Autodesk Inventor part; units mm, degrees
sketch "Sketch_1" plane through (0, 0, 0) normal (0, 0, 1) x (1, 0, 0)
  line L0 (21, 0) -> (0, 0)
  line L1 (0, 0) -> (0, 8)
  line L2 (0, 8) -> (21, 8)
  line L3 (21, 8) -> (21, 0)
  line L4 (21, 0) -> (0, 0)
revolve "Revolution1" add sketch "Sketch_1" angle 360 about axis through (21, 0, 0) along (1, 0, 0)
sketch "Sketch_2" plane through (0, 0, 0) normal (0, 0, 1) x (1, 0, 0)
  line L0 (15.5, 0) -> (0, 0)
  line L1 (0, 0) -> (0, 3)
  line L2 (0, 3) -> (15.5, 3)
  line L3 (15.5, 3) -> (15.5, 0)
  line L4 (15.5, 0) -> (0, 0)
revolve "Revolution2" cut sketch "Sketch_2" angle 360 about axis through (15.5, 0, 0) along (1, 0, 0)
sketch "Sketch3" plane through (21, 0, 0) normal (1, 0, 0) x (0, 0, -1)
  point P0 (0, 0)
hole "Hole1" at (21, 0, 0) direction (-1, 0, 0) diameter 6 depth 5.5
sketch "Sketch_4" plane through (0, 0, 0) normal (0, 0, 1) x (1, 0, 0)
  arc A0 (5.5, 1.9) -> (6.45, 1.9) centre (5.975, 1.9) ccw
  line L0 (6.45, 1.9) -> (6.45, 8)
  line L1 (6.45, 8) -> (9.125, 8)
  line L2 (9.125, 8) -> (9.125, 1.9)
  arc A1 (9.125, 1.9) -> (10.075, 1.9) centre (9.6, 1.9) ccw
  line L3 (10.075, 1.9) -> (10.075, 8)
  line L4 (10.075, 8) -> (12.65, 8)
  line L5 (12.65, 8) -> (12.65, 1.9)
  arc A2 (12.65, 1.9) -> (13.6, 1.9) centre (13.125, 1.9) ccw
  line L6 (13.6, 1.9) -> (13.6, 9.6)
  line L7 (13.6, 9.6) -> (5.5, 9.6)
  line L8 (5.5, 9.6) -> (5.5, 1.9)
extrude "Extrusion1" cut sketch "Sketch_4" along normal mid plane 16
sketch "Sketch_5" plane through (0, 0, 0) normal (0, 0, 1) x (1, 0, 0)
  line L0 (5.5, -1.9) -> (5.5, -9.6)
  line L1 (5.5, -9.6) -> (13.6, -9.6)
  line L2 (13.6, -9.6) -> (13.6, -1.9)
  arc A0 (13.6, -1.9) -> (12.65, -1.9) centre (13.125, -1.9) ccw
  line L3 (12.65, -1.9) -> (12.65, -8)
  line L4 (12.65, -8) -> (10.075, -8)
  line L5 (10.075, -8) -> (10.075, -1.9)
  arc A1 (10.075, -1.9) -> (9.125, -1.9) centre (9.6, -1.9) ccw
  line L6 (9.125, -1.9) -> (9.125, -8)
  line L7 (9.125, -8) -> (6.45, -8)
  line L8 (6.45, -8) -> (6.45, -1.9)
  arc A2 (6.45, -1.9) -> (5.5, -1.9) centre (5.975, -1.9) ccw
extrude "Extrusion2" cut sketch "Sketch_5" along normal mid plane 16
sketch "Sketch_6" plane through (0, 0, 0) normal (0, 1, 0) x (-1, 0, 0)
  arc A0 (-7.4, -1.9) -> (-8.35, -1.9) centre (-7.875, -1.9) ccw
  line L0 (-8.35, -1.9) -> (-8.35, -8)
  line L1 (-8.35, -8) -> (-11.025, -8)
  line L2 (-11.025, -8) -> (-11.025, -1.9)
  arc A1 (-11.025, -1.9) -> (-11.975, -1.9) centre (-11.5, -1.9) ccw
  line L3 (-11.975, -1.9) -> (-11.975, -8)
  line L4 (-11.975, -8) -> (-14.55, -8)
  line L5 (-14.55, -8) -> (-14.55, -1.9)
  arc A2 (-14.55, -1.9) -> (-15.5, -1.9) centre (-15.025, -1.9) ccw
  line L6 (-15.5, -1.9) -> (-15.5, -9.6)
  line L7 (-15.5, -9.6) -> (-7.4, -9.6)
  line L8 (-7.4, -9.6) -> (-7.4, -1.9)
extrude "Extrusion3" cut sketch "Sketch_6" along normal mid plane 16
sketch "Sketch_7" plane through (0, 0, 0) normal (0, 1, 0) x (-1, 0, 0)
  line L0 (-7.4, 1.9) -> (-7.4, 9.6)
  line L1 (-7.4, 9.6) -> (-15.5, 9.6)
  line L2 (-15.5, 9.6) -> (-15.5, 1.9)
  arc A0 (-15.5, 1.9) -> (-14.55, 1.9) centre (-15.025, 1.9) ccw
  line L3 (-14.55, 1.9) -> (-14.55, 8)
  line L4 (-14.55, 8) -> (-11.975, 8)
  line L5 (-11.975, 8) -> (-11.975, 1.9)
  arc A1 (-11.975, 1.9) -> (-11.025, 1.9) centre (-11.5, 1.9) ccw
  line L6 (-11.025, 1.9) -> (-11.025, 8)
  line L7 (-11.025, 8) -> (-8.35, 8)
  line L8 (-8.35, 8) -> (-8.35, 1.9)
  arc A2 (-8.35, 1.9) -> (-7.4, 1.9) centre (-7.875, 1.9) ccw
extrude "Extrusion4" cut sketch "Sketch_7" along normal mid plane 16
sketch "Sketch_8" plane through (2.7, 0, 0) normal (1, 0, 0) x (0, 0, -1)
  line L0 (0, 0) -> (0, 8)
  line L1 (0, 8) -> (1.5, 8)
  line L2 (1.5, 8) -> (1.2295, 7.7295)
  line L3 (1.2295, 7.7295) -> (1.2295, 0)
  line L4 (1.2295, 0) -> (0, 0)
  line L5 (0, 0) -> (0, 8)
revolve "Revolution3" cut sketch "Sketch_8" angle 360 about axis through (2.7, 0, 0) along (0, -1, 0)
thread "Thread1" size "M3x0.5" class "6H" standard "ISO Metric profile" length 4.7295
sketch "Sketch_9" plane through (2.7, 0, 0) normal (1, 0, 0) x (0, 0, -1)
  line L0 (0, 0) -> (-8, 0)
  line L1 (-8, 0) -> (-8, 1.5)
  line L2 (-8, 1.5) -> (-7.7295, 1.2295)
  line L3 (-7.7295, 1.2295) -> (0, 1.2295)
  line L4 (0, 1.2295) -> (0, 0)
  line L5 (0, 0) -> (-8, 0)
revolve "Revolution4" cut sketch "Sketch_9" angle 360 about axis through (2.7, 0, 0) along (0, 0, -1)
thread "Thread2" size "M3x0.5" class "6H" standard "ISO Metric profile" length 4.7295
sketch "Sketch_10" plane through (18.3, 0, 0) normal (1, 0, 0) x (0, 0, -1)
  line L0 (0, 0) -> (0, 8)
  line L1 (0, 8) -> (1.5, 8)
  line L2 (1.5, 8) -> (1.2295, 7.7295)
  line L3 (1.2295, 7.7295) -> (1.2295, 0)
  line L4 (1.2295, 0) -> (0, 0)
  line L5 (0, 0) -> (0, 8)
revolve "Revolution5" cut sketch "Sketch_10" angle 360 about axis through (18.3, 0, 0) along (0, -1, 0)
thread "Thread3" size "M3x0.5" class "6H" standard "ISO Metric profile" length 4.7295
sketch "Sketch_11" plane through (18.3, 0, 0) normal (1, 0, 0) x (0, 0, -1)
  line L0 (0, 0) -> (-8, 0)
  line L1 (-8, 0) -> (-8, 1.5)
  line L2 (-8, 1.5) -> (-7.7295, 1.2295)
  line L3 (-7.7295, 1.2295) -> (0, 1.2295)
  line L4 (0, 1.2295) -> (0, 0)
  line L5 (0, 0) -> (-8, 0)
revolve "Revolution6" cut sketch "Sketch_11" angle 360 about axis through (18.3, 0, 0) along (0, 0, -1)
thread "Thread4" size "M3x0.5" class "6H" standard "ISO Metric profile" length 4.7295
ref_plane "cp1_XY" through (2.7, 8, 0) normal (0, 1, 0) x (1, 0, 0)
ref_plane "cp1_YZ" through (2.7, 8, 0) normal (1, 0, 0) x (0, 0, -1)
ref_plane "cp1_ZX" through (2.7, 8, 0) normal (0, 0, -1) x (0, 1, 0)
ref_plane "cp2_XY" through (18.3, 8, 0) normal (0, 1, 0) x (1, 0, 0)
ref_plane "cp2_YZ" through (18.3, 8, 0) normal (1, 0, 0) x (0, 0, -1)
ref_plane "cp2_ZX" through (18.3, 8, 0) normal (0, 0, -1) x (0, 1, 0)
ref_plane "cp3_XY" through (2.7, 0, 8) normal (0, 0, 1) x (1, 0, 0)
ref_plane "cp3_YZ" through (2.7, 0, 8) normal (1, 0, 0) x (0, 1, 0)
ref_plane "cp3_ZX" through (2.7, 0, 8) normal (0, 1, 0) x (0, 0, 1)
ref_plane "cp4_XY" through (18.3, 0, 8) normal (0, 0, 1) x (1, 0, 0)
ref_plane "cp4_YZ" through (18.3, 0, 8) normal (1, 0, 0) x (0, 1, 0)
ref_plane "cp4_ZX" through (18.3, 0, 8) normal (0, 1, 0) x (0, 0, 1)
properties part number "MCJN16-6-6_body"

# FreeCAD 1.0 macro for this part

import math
import FreeCAD as App
import Part
import Sketcher
Q = App.Units.Quantity

doc = App.newDocument("Part")
body = doc.addObject("PartDesign::Body", "Body")

# Sketch on XY plane
sketch1 = body.newObject("Sketcher::SketchObject", "Sketch")
sketch1.AttachmentSupport = (doc.getObject("XY_Plane"), [""])
sketch1.MapMode = "FlatFace"
sketch1.addGeometry([
    Part.LineSegment(App.Vector(0, 0, 0), App.Vector(21, 0, 0)),
    Part.LineSegment(App.Vector(21, 0, 0), App.Vector(21, 8, 0)),
    Part.LineSegment(App.Vector(21, 8, 0), App.Vector(0, 8, 0)),
    Part.LineSegment(App.Vector(0, 8, 0), App.Vector(0, 0, 0)),
], False)
sketch1.addConstraint([
    Sketcher.Constraint("Coincident", 0, 2, 1, 1),
    Sketcher.Constraint("Coincident", 1, 2, 2, 1),
    Sketcher.Constraint("Coincident", 2, 2, 3, 1),
    Sketcher.Constraint("Coincident", 3, 2, 0, 1),
    Sketcher.Constraint("Horizontal", 0),
    Sketcher.Constraint("Vertical", 1),
    Sketcher.Constraint("Horizontal", 2),
    Sketcher.Constraint("Vertical", 3),
    Sketcher.Constraint("Coincident", 3, 2, -1, 1),
    Sketcher.Constraint("DistanceX", 0, 1, 0, 2, 21.0),
    Sketcher.Constraint("DistanceY", 1, 1, 1, 2, 8.0),
])
revolution = body.newObject("PartDesign::Revolution", "Revolution")
revolution.Profile = sketch1
revolution.ReferenceAxis = (sketch1, ["H_Axis"])
revolution.Angle = 360

# Sketch on XY plane
sketch2 = body.newObject("Sketcher::SketchObject", "Sketch001")
sketch2.AttachmentSupport = (doc.getObject("XY_Plane"), [""])
sketch2.MapMode = "FlatFace"
sketch2.addGeometry([
    Part.LineSegment(App.Vector(0, 0, 0), App.Vector(15.5, 0, 0)),
    Part.LineSegment(App.Vector(15.5, 0, 0), App.Vector(15.5, 3, 0)),
    Part.LineSegment(App.Vector(15.5, 3, 0), App.Vector(0, 3, 0)),
    Part.LineSegment(App.Vector(0, 3, 0), App.Vector(0, 0, 0)),
], False)
sketch2.addConstraint([
    Sketcher.Constraint("Coincident", 0, 2, 1, 1),
    Sketcher.Constraint("Coincident", 1, 2, 2, 1),
    Sketcher.Constraint("Coincident", 2, 2, 3, 1),
    Sketcher.Constraint("Coincident", 3, 2, 0, 1),
    Sketcher.Constraint("Horizontal", 0),
    Sketcher.Constraint("Vertical", 1),
    Sketcher.Constraint("Horizontal", 2),
    Sketcher.Constraint("Vertical", 3),
    Sketcher.Constraint("Coincident", 3, 2, -1, 1),
    Sketcher.Constraint("DistanceY", 1, 1, 1, 2, 3.0),
    Sketcher.Constraint("DistanceX", 0, 1, 0, 2, 15.5),
])
groove = body.newObject("PartDesign::Groove", "Groove")
groove.Profile = sketch2
groove.ReferenceAxis = (sketch2, ["H_Axis"])
groove.Angle = 360

# Sketch on YZ plane
sketch3 = body.newObject("Sketcher::SketchObject", "Sketch002")
sketch3.AttachmentSupport = (doc.getObject("YZ_Plane"), [""])
sketch3.MapMode = "FlatFace"
sketch3.AttachmentOffset = App.Placement(App.Vector(0, 0, 21), App.Rotation())
sketch3.addGeometry(Part.Circle(App.Vector(0, 0, 0), App.Vector(0, 0, 1), 3), False)
sketch3.addConstraint([
    Sketcher.Constraint("Coincident", 0, 3, -1, 1),
    Sketcher.Constraint("Diameter", 0, 6.0),
])
doc.recompute()
hole = body.newObject("PartDesign::Hole", "Hole")
hole.Profile = sketch3
hole.ThreadType = "None"
hole.Diameter = 6
hole.DepthType = "Dimension"
hole.Depth = 5.5
hole.DrillPoint = "Flat"

# Sketch on XY plane
sketch4 = body.newObject("Sketcher::SketchObject", "Sketch003")
sketch4.AttachmentSupport = (doc.getObject("XY_Plane"), [""])
sketch4.MapMode = "FlatFace"
sketch4.addGeometry([
    Part.LineSegment(App.Vector(5.5, 9.6, 0), App.Vector(5.5, 1.9, 0)),  # 0
    Part.ArcOfCircle(Part.Circle(App.Vector(5.975, 1.9, 0), App.Vector(0, 0, 1), 0.475), math.radians(180), math.radians(360)),  # 1
    Part.LineSegment(App.Vector(6.45, 1.9, 0), App.Vector(6.45, 8, 0)),  # 2
    Part.LineSegment(App.Vector(6.45, 8, 0), App.Vector(9.125, 8, 0)),  # 3
    Part.LineSegment(App.Vector(9.125, 8, 0), App.Vector(9.125, 1.9, 0)),  # 4
    Part.ArcOfCircle(Part.Circle(App.Vector(9.6, 1.9, 0), App.Vector(0, 0, 1), 0.475), math.radians(180), math.radians(360)),  # 5
    Part.LineSegment(App.Vector(10.075, 1.9, 0), App.Vector(10.075, 8, 0)),  # 6
    Part.LineSegment(App.Vector(10.075, 8, 0), App.Vector(12.65, 8, 0)),  # 7
    Part.LineSegment(App.Vector(12.65, 8, 0), App.Vector(12.65, 1.9, 0)),  # 8
    Part.ArcOfCircle(Part.Circle(App.Vector(13.125, 1.9, 0), App.Vector(0, 0, 1), 0.475), math.radians(180), math.radians(360)),  # 9
    Part.LineSegment(App.Vector(13.6, 1.9, 0), App.Vector(13.6, 9.6, 0)),  # 10
    Part.LineSegment(App.Vector(13.6, 9.6, 0), App.Vector(5.5, 9.6, 0)),  # 11
], False)
sketch4.addConstraint([
    Sketcher.Constraint("Tangent", 0, 2, 1, 1),
    Sketcher.Constraint("Tangent", 1, 2, 2, 1),
    Sketcher.Constraint("Coincident", 2, 2, 3, 1),
    Sketcher.Constraint("Coincident", 3, 2, 4, 1),
    Sketcher.Constraint("Tangent", 4, 2, 5, 1),
    Sketcher.Constraint("Tangent", 5, 2, 6, 1),
    Sketcher.Constraint("Coincident", 6, 2, 7, 1),
    Sketcher.Constraint("Coincident", 7, 2, 8, 1),
    Sketcher.Constraint("Tangent", 8, 2, 9, 1),
    Sketcher.Constraint("Tangent", 9, 2, 10, 1),
    Sketcher.Constraint("Coincident", 10, 2, 11, 1),
    Sketcher.Constraint("Coincident", 11, 2, 0, 1),
    Sketcher.Constraint("Vertical", 0),
    Sketcher.Constraint("Vertical", 2),
    Sketcher.Constraint("Horizontal", 3),
    Sketcher.Constraint("Vertical", 4),
    Sketcher.Constraint("Vertical", 6),
    Sketcher.Constraint("Horizontal", 7),
    Sketcher.Constraint("Vertical", 8),
    Sketcher.Constraint("Vertical", 10),
    Sketcher.Constraint("Horizontal", 11),
    Sketcher.Constraint("Equal", 1, 5),
    Sketcher.Constraint("Equal", 5, 9),
    Sketcher.Constraint("Horizontal", 1, 3, 5, 3),
    Sketcher.Constraint("Horizontal", 5, 3, 9, 3),
    Sketcher.Constraint("Horizontal", 3, 2, 6, 2),
    Sketcher.Constraint("DistanceX", 11, 2, 11, 1, 8.1),
    Sketcher.Constraint("DistanceY", 0, 2, 0, 1, 7.7),
    Sketcher.Constraint("DistanceY", 2, 1, 2, 2, 6.1),
    Sketcher.Constraint("DistanceY", -1, 1, 2, 2, 8.0),
    Sketcher.Constraint("Radius", 1, 0.475),
    Sketcher.Constraint("DistanceX", 4, 2, 9, 3, 4.0),
    Sketcher.Constraint("DistanceX", -1, 1, 5, 3, 9.6),
])
pocket1 = body.newObject("PartDesign::Pocket", "Pocket")
pocket1.Profile = sketch4
pocket1.Length = 16
pocket1.Midplane = True

# Sketch on XY plane
sketch5 = body.newObject("Sketcher::SketchObject", "Sketch004")
sketch5.AttachmentSupport = (doc.getObject("XY_Plane"), [""])
sketch5.MapMode = "FlatFace"
sketch5.addGeometry([
    Part.ArcOfCircle(Part.Circle(App.Vector(5.975, -1.9, 0), App.Vector(0, 0, 1), 0.475), math.radians(0), math.radians(180)),  # 0
    Part.LineSegment(App.Vector(5.5, -1.9, 0), App.Vector(5.5, -9.6, 0)),  # 1
    Part.LineSegment(App.Vector(5.5, -9.6, 0), App.Vector(13.6, -9.6, 0)),  # 2
    Part.LineSegment(App.Vector(13.6, -9.6, 0), App.Vector(13.6, -1.9, 0)),  # 3
    Part.ArcOfCircle(Part.Circle(App.Vector(13.125, -1.9, 0), App.Vector(0, 0, 1), 0.475), math.radians(0), math.radians(180)),  # 4
    Part.LineSegment(App.Vector(12.65, -1.9, 0), App.Vector(12.65, -8, 0)),  # 5
    Part.LineSegment(App.Vector(12.65, -8, 0), App.Vector(10.075, -8, 0)),  # 6
    Part.LineSegment(App.Vector(10.075, -8, 0), App.Vector(10.075, -1.9, 0)),  # 7
    Part.ArcOfCircle(Part.Circle(App.Vector(9.6, -1.9, 0), App.Vector(0, 0, 1), 0.475), math.radians(0), math.radians(180)),  # 8
    Part.LineSegment(App.Vector(9.125, -1.9, 0), App.Vector(9.125, -8, 0)),  # 9
    Part.LineSegment(App.Vector(9.125, -8, 0), App.Vector(6.45, -8, 0)),  # 10
    Part.LineSegment(App.Vector(6.45, -8, 0), App.Vector(6.45, -1.9, 0)),  # 11
], False)
sketch5.addConstraint([
    Sketcher.Constraint("Tangent", 0, 2, 1, 1),
    Sketcher.Constraint("Coincident", 1, 2, 2, 1),
    Sketcher.Constraint("Coincident", 2, 2, 3, 1),
    Sketcher.Constraint("Tangent", 3, 2, 4, 1),
    Sketcher.Constraint("Tangent", 4, 2, 5, 1),
    Sketcher.Constraint("Coincident", 5, 2, 6, 1),
    Sketcher.Constraint("Coincident", 6, 2, 7, 1),
    Sketcher.Constraint("Tangent", 7, 2, 8, 1),
    Sketcher.Constraint("Tangent", 8, 2, 9, 1),
    Sketcher.Constraint("Coincident", 9, 2, 10, 1),
    Sketcher.Constraint("Coincident", 10, 2, 11, 1),
    Sketcher.Constraint("Tangent", 11, 2, 0, 1),
    Sketcher.Constraint("Vertical", 1),
    Sketcher.Constraint("Horizontal", 2),
    Sketcher.Constraint("Vertical", 3),
    Sketcher.Constraint("Vertical", 5),
    Sketcher.Constraint("Horizontal", 6),
    Sketcher.Constraint("Vertical", 7),
    Sketcher.Constraint("Vertical", 9),
    Sketcher.Constraint("Horizontal", 10),
    Sketcher.Constraint("Vertical", 11),
    Sketcher.Constraint("Equal", 0, 4),
    Sketcher.Constraint("Equal", 4, 8),
    Sketcher.Constraint("Horizontal", 0, 3, 4, 3),
    Sketcher.Constraint("Horizontal", 4, 3, 8, 3),
    Sketcher.Constraint("Horizontal", 6, 2, 9, 2),
    Sketcher.Constraint("DistanceX", 2, 1, 2, 2, 8.1),
    Sketcher.Constraint("DistanceY", 1, 2, 1, 1, 7.7),
    Sketcher.Constraint("DistanceY", 5, 2, 5, 1, 6.1),
    Sketcher.Constraint("DistanceY", 5, 2, -1, 1, 8.0),
    Sketcher.Constraint("Radius", 0, 0.475),
    Sketcher.Constraint("DistanceX", 8, 3, 2, 2, 4.0),
    Sketcher.Constraint("DistanceX", -1, 1, 8, 3, 9.6),
])
pocket2 = body.newObject("PartDesign::Pocket", "Pocket001")
pocket2.Profile = sketch5
pocket2.Length = 16
pocket2.Midplane = True

# Sketch on XZ plane
sketch6 = body.newObject("Sketcher::SketchObject", "Sketch005")
sketch6.AttachmentSupport = (doc.getObject("XZ_Plane"), [""])
sketch6.MapMode = "FlatFace"
sketch6.addGeometry([
    Part.LineSegment(App.Vector(7.4, -9.6, 0), App.Vector(7.4, -1.9, 0)),  # 0
    Part.ArcOfCircle(Part.Circle(App.Vector(7.875, -1.9, 0), App.Vector(0, 0, 1), 0.475), math.radians(0), math.radians(180)),  # 1
    Part.LineSegment(App.Vector(8.35, -1.9, 0), App.Vector(8.35, -8, 0)),  # 2
    Part.LineSegment(App.Vector(8.35, -8, 0), App.Vector(11.025, -8, 0)),  # 3
    Part.LineSegment(App.Vector(11.025, -8, 0), App.Vector(11.025, -1.9, 0)),  # 4
    Part.ArcOfCircle(Part.Circle(App.Vector(11.5, -1.9, 0), App.Vector(0, 0, 1), 0.475), math.radians(0), math.radians(180)),  # 5
    Part.LineSegment(App.Vector(11.975, -1.9, 0), App.Vector(11.975, -8, 0)),  # 6
    Part.LineSegment(App.Vector(11.975, -8, 0), App.Vector(14.55, -8, 0)),  # 7
    Part.LineSegment(App.Vector(14.55, -8, 0), App.Vector(14.55, -1.9, 0)),  # 8
    Part.ArcOfCircle(Part.Circle(App.Vector(15.025, -1.9, 0), App.Vector(0, 0, 1), 0.475), math.radians(0), math.radians(180)),  # 9
    Part.LineSegment(App.Vector(15.5, -1.9, 0), App.Vector(15.5, -9.6, 0)),  # 10
    Part.LineSegment(App.Vector(15.5, -9.6, 0), App.Vector(7.4, -9.6, 0)),  # 11
], False)
sketch6.addConstraint([
    Sketcher.Constraint("Tangent", 0, 2, 1, 2),
    Sketcher.Constraint("Tangent", 1, 1, 2, 1),
    Sketcher.Constraint("Coincident", 2, 2, 3, 1),
    Sketcher.Constraint("Coincident", 3, 2, 4, 1),
    Sketcher.Constraint("Tangent", 4, 2, 5, 2),
    Sketcher.Constraint("Tangent", 5, 1, 6, 1),
    Sketcher.Constraint("Coincident", 6, 2, 7, 1),
    Sketcher.Constraint("Coincident", 7, 2, 8, 1),
    Sketcher.Constraint("Tangent", 8, 2, 9, 2),
    Sketcher.Constraint("Tangent", 9, 1, 10, 1),
    Sketcher.Constraint("Coincident", 10, 2, 11, 1),
    Sketcher.Constraint("Coincident", 11, 2, 0, 1),
    Sketcher.Constraint("Vertical", 0),
    Sketcher.Constraint("Vertical", 2),
    Sketcher.Constraint("Horizontal", 3),
    Sketcher.Constraint("Vertical", 4),
    Sketcher.Constraint("Vertical", 6),
    Sketcher.Constraint("Horizontal", 7),
    Sketcher.Constraint("Vertical", 8),
    Sketcher.Constraint("Vertical", 10),
    Sketcher.Constraint("Horizontal", 11),
    Sketcher.Constraint("Equal", 1, 5),
    Sketcher.Constraint("Equal", 5, 9),
    Sketcher.Constraint("Horizontal", 1, 3, 5, 3),
    Sketcher.Constraint("Horizontal", 5, 3, 9, 3),
    Sketcher.Constraint("Horizontal", 3, 2, 6, 2),
    Sketcher.Constraint("DistanceX", 11, 2, 11, 1, 8.1),
    Sketcher.Constraint("DistanceY", 0, 1, 0, 2, 7.7),
    Sketcher.Constraint("DistanceY", 2, 2, 2, 1, 6.1),
    Sketcher.Constraint("DistanceY", 2, 2, -1, 1, 8.0),
    Sketcher.Constraint("Radius", 1, 0.475),
    Sketcher.Constraint("DistanceX", 4, 2, 9, 3, 4.0),
    Sketcher.Constraint("DistanceX", -1, 1, 5, 3, 11.5),
])
pocket3 = body.newObject("PartDesign::Pocket", "Pocket002")
pocket3.Profile = sketch6
pocket3.Length = 16
pocket3.Midplane = True

# Sketch on XZ plane
sketch7 = body.newObject("Sketcher::SketchObject", "Sketch006")
sketch7.AttachmentSupport = (doc.getObject("XZ_Plane"), [""])
sketch7.MapMode = "FlatFace"
sketch7.addGeometry([
    Part.ArcOfCircle(Part.Circle(App.Vector(7.875, 1.9, 0), App.Vector(0, 0, 1), 0.475), math.radians(180), math.radians(360)),  # 0
    Part.LineSegment(App.Vector(7.4, 1.9, 0), App.Vector(7.4, 9.6, 0)),  # 1
    Part.LineSegment(App.Vector(7.4, 9.6, 0), App.Vector(15.5, 9.6, 0)),  # 2
    Part.LineSegment(App.Vector(15.5, 9.6, 0), App.Vector(15.5, 1.9, 0)),  # 3
    Part.ArcOfCircle(Part.Circle(App.Vector(15.025, 1.9, 0), App.Vector(0, 0, 1), 0.475), math.radians(180), math.radians(360)),  # 4
    Part.LineSegment(App.Vector(14.55, 1.9, 0), App.Vector(14.55, 8, 0)),  # 5
    Part.LineSegment(App.Vector(14.55, 8, 0), App.Vector(11.975, 8, 0)),  # 6
    Part.LineSegment(App.Vector(11.975, 8, 0), App.Vector(11.975, 1.9, 0)),  # 7
    Part.ArcOfCircle(Part.Circle(App.Vector(11.5, 1.9, 0), App.Vector(0, 0, 1), 0.475), math.radians(180), math.radians(360)),  # 8
    Part.LineSegment(App.Vector(11.025, 1.9, 0), App.Vector(11.025, 8, 0)),  # 9
    Part.LineSegment(App.Vector(11.025, 8, 0), App.Vector(8.35, 8, 0)),  # 10
    Part.LineSegment(App.Vector(8.35, 8, 0), App.Vector(8.35, 1.9, 0)),  # 11
], False)
sketch7.addConstraint([
    Sketcher.Constraint("Tangent", 0, 1, 1, 1),
    Sketcher.Constraint("Coincident", 1, 2, 2, 1),
    Sketcher.Constraint("Coincident", 2, 2, 3, 1),
    Sketcher.Constraint("Tangent", 3, 2, 4, 2),
    Sketcher.Constraint("Tangent", 4, 1, 5, 1),
    Sketcher.Constraint("Coincident", 5, 2, 6, 1),
    Sketcher.Constraint("Coincident", 6, 2, 7, 1),
    Sketcher.Constraint("Tangent", 7, 2, 8, 2),
    Sketcher.Constraint("Tangent", 8, 1, 9, 1),
    Sketcher.Constraint("Coincident", 9, 2, 10, 1),
    Sketcher.Constraint("Coincident", 10, 2, 11, 1),
    Sketcher.Constraint("Tangent", 11, 2, 0, 2),
    Sketcher.Constraint("Vertical", 1),
    Sketcher.Constraint("Horizontal", 2),
    Sketcher.Constraint("Vertical", 3),
    Sketcher.Constraint("Vertical", 5),
    Sketcher.Constraint("Horizontal", 6),
    Sketcher.Constraint("Vertical", 7),
    Sketcher.Constraint("Vertical", 9),
    Sketcher.Constraint("Horizontal", 10),
    Sketcher.Constraint("Vertical", 11),
    Sketcher.Constraint("Equal", 0, 4),
    Sketcher.Constraint("Equal", 4, 8),
    Sketcher.Constraint("Horizontal", 0, 3, 4, 3),
    Sketcher.Constraint("Horizontal", 4, 3, 8, 3),
    Sketcher.Constraint("Horizontal", 6, 2, 9, 2),
    Sketcher.Constraint("DistanceX", 2, 1, 2, 2, 8.1),
    Sketcher.Constraint("DistanceY", 1, 1, 1, 2, 7.7),
    Sketcher.Constraint("DistanceY", 5, 1, 5, 2, 6.1),
    Sketcher.Constraint("DistanceY", -1, 1, 5, 2, 8.0),
    Sketcher.Constraint("Radius", 0, 0.475),
    Sketcher.Constraint("DistanceX", 8, 3, 2, 2, 4.0),
    Sketcher.Constraint("DistanceX", -1, 1, 8, 3, 11.5),
])
pocket4 = body.newObject("PartDesign::Pocket", "Pocket003")
pocket4.Profile = sketch7
pocket4.Length = 16
pocket4.Midplane = True

# Sketch on YZ plane
sketch8 = body.newObject("Sketcher::SketchObject", "Sketch007")
sketch8.AttachmentSupport = (doc.getObject("YZ_Plane"), [""])
sketch8.MapMode = "FlatFace"
sketch8.AttachmentOffset = App.Placement(App.Vector(0, 0, 2.7), App.Rotation())
sketch8.addGeometry([
    Part.LineSegment(App.Vector(8, 0, 0), App.Vector(0, 0, 0)),  # 0
    Part.LineSegment(App.Vector(0, 0, 0), App.Vector(0, -1.2295, 0)),  # 1
    Part.LineSegment(App.Vector(0, -1.2295, 0), App.Vector(7.7295, -1.2295, 0)),  # 2
    Part.LineSegment(App.Vector(7.7295, -1.2295, 0), App.Vector(8, -1.5, 0)),  # 3
    Part.LineSegment(App.Vector(8, -1.5, 0), App.Vector(8, 0, 0)),  # 4
], False)
sketch8.addConstraint([
    Sketcher.Constraint("Coincident", 0, 2, 1, 1),
    Sketcher.Constraint("Coincident", 1, 2, 2, 1),
    Sketcher.Constraint("Coincident", 2, 2, 3, 1),
    Sketcher.Constraint("Coincident", 3, 2, 4, 1),
    Sketcher.Constraint("Coincident", 4, 2, 0, 1),
    Sketcher.Constraint("Horizontal", 0),
    Sketcher.Constraint("Vertical", 1),
    Sketcher.Constraint("Horizontal", 2),
    Sketcher.Constraint("Vertical", 4),
    Sketcher.Constraint("Coincident", 0, 2, -1, 1),
    Sketcher.Constraint("DistanceX", 0, 2, 0, 1, 8.0),
    Sketcher.Constraint("Angle", 3, Q("-45 deg")),
    Sketcher.Constraint("DistanceY", 4, 1, 4, 2, 1.5),
    Sketcher.Constraint("DistanceX", 2, 1, 2, 2, 7.7295),
])
groove2 = body.newObject("PartDesign::Groove", "Groove001")
groove2.Profile = sketch8
groove2.ReferenceAxis = (sketch8, ["H_Axis"])
groove2.Angle = 360

# Sketch on YZ plane
sketch9 = body.newObject("Sketcher::SketchObject", "Sketch008")
sketch9.AttachmentSupport = (doc.getObject("YZ_Plane"), [""])
sketch9.MapMode = "FlatFace"
sketch9.AttachmentOffset = App.Placement(App.Vector(0, 0, 2.7), App.Rotation())
sketch9.addGeometry([
    Part.LineSegment(App.Vector(0, 8, 0), App.Vector(0, 0, 0)),  # 0
    Part.LineSegment(App.Vector(0, 0, 0), App.Vector(1.2295, 0, 0)),  # 1
    Part.LineSegment(App.Vector(1.2295, 0, 0), App.Vector(1.2295, 7.7295, 0)),  # 2
    Part.LineSegment(App.Vector(1.2295, 7.7295, 0), App.Vector(1.5, 8, 0)),  # 3
    Part.LineSegment(App.Vector(1.5, 8, 0), App.Vector(0, 8, 0)),  # 4
], False)
sketch9.addConstraint([
    Sketcher.Constraint("Coincident", 0, 2, 1, 1),
    Sketcher.Constraint("Coincident", 1, 2, 2, 1),
    Sketcher.Constraint("Coincident", 2, 2, 3, 1),
    Sketcher.Constraint("Coincident", 3, 2, 4, 1),
    Sketcher.Constraint("Coincident", 4, 2, 0, 1),
    Sketcher.Constraint("Vertical", 0),
    Sketcher.Constraint("Horizontal", 1),
    Sketcher.Constraint("Vertical", 2),
    Sketcher.Constraint("Horizontal", 4),
    Sketcher.Constraint("Coincident", 0, 2, -1, 1),
    Sketcher.Constraint("DistanceY", 0, 2, 0, 1, 8.0),
    Sketcher.Constraint("Angle", 3, Q("45 deg")),
    Sketcher.Constraint("DistanceX", 4, 2, 4, 1, 1.5),
    Sketcher.Constraint("DistanceX", 1, 1, 1, 2, 1.2295),
])
groove3 = body.newObject("PartDesign::Groove", "Groove002")
groove3.Profile = sketch9
groove3.ReferenceAxis = (sketch9, ["V_Axis"])
groove3.Angle = 360

# Sketch on YZ plane
sketch10 = body.newObject("Sketcher::SketchObject", "Sketch009")
sketch10.AttachmentSupport = (doc.getObject("YZ_Plane"), [""])
sketch10.MapMode = "FlatFace"
sketch10.AttachmentOffset = App.Placement(App.Vector(0, 0, 18.3), App.Rotation())
sketch10.addGeometry([
    Part.LineSegment(App.Vector(8, 0, 0), App.Vector(0, 0, 0)),  # 0
    Part.LineSegment(App.Vector(0, 0, 0), App.Vector(0, -1.2295, 0)),  # 1
    Part.LineSegment(App.Vector(0, -1.2295, 0), App.Vector(7.7295, -1.2295, 0)),  # 2
    Part.LineSegment(App.Vector(7.7295, -1.2295, 0), App.Vector(8, -1.5, 0)),  # 3
    Part.LineSegment(App.Vector(8, -1.5, 0), App.Vector(8, 0, 0)),  # 4
], False)
sketch10.addConstraint([
    Sketcher.Constraint("Coincident", 0, 2, 1, 1),
    Sketcher.Constraint("Coincident", 1, 2, 2, 1),
    Sketcher.Constraint("Coincident", 2, 2, 3, 1),
    Sketcher.Constraint("Coincident", 3, 2, 4, 1),
    Sketcher.Constraint("Coincident", 4, 2, 0, 1),
    Sketcher.Constraint("Horizontal", 0),
    Sketcher.Constraint("Vertical", 1),
    Sketcher.Constraint("Horizontal", 2),
    Sketcher.Constraint("Vertical", 4),
    Sketcher.Constraint("Coincident", 0, 2, -1, 1),
    Sketcher.Constraint("DistanceX", 0, 2, 0, 1, 8.0),
    Sketcher.Constraint("Angle", 3, Q("-45 deg")),
    Sketcher.Constraint("DistanceY", 4, 1, 4, 2, 1.5),
    Sketcher.Constraint("DistanceX", 2, 1, 2, 2, 7.7295),
])
groove4 = body.newObject("PartDesign::Groove", "Groove003")
groove4.Profile = sketch10
groove4.ReferenceAxis = (sketch10, ["H_Axis"])
groove4.Angle = 360

# Sketch on YZ plane
sketch11 = body.newObject("Sketcher::SketchObject", "Sketch010")
sketch11.AttachmentSupport = (doc.getObject("YZ_Plane"), [""])
sketch11.MapMode = "FlatFace"
sketch11.AttachmentOffset = App.Placement(App.Vector(0, 0, 18.3), App.Rotation())
sketch11.addGeometry([
    Part.LineSegment(App.Vector(0, 8, 0), App.Vector(0, 0, 0)),  # 0
    Part.LineSegment(App.Vector(0, 0, 0), App.Vector(1.2295, 0, 0)),  # 1
    Part.LineSegment(App.Vector(1.2295, 0, 0), App.Vector(1.2295, 7.7295, 0)),  # 2
    Part.LineSegment(App.Vector(1.2295, 7.7295, 0), App.Vector(1.5, 8, 0)),  # 3
    Part.LineSegment(App.Vector(1.5, 8, 0), App.Vector(0, 8, 0)),  # 4
], False)
sketch11.addConstraint([
    Sketcher.Constraint("Coincident", 0, 2, 1, 1),
    Sketcher.Constraint("Coincident", 1, 2, 2, 1),
    Sketcher.Constraint("Coincident", 2, 2, 3, 1),
    Sketcher.Constraint("Coincident", 3, 2, 4, 1),
    Sketcher.Constraint("Coincident", 4, 2, 0, 1),
    Sketcher.Constraint("Vertical", 0),
    Sketcher.Constraint("Horizontal", 1),
    Sketcher.Constraint("Vertical", 2),
    Sketcher.Constraint("Horizontal", 4),
    Sketcher.Constraint("Coincident", 0, 2, -1, 1),
    Sketcher.Constraint("DistanceY", 0, 2, 0, 1, 8.0),
    Sketcher.Constraint("Angle", 3, Q("45 deg")),
    Sketcher.Constraint("DistanceX", 4, 2, 4, 1, 1.5),
    Sketcher.Constraint("DistanceX", 1, 1, 1, 2, 1.2295),
])
groove5 = body.newObject("PartDesign::Groove", "Groove004")
groove5.Profile = sketch11
groove5.ReferenceAxis = (sketch11, ["V_Axis"])
groove5.Angle = 360

doc.recompute()
